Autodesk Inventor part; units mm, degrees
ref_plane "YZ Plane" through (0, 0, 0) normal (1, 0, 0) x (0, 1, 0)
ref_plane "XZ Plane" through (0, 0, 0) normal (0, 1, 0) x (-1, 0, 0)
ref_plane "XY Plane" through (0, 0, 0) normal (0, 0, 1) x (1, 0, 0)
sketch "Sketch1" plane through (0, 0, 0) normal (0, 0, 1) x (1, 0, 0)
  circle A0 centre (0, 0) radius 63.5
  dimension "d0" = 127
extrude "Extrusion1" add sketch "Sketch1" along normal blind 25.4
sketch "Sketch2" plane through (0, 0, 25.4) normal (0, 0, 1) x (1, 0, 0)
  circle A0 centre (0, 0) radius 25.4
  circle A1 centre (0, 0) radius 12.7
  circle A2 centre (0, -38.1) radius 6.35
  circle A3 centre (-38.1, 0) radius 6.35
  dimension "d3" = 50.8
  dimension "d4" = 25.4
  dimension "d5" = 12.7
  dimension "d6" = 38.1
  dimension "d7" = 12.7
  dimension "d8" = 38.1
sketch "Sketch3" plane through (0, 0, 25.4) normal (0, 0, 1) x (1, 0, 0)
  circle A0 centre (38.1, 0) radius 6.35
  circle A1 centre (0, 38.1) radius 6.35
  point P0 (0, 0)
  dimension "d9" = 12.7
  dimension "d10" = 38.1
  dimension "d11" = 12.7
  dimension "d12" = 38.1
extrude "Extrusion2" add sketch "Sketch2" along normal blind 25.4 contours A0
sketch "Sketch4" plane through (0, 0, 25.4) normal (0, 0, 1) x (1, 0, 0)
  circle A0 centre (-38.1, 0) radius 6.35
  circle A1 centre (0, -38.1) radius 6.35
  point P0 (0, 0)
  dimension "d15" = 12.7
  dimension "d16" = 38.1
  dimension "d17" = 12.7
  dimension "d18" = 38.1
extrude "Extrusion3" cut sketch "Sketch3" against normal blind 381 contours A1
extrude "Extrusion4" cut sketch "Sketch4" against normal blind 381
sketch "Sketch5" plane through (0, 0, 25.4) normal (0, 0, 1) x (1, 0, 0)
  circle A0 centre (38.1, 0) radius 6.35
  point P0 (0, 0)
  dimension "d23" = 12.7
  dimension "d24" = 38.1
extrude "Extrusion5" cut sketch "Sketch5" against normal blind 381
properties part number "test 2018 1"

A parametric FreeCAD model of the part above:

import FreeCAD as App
import Part
import Sketcher
from FreeCAD import Vector
Q = App.Units.Quantity

doc = App.newDocument("Part")
body = doc.addObject("PartDesign::Body", "Body")

sketch1 = doc.addObject("Sketcher::SketchObject", "Sketch")
body.addObject(sketch1)
sketch1.AttachmentSupport = (doc.XY_Plane, [""])
sketch1.MapMode = "FlatFace"
sketch1.addGeometry(Part.Circle(Vector(0, 0, 0), Vector(0, 0, 1), 63.5), False)
sketch1.addConstraint([
    Sketcher.Constraint("Coincident", 0, 3, -1, 1),
    Sketcher.Constraint("Diameter", 0, Q("5 in")),
])
pad1 = doc.addObject("PartDesign::Pad", "Pad")
body.addObject(pad1)
pad1.Profile = sketch1
pad1.Length = Q("1 in")

sketch2 = doc.addObject("Sketcher::SketchObject", "Sketch001")
body.addObject(sketch2)
sketch2.AttachmentSupport = (doc.XY_Plane, [""])
sketch2.MapMode = "FlatFace"
sketch2.AttachmentOffset = App.Placement(Vector(0, 0, 1 * 25.4), App.Rotation())
sketch2.addGeometry([
    Part.Circle(Vector(0, 0, 0), Vector(0, 0, 1), 25.4),
    Part.Circle(Vector(0, 0, 0), Vector(0, 0, 1), 12.7),
], False)
sketch2.addConstraint([
    Sketcher.Constraint("Coincident", 0, 3, -1, 1),
    Sketcher.Constraint("Coincident", 1, 3, -1, 1),
    Sketcher.Constraint("Diameter", 0, Q("2 in")),
    Sketcher.Constraint("Diameter", 1, Q("1 in")),
])
pad2 = doc.addObject("PartDesign::Pad", "Pad001")
body.addObject(pad2)
pad2.Profile = sketch2
pad2.Length = Q("1 in")

sketch3 = doc.addObject("Sketcher::SketchObject", "Sketch002")
body.addObject(sketch3)
sketch3.AttachmentSupport = (doc.XY_Plane, [""])
sketch3.MapMode = "FlatFace"
sketch3.AttachmentOffset = App.Placement(Vector(0, 0, 1 * 25.4), App.Rotation())
sketch3.addGeometry(Part.Circle(Vector(0, 38.1, 0), Vector(0, 0, 1), 6.35), False)
sketch3.addConstraint([
    Sketcher.Constraint("PointOnObject", 0, 3, -2),
    Sketcher.Constraint("Diameter", 0, Q("0.5 in")),
    Sketcher.Constraint("DistanceY", -1, 1, 0, 3, Q("1.5 in")),
])
pocket1 = doc.addObject("PartDesign::Pocket", "Pocket")
body.addObject(pocket1)
pocket1.Profile = sketch3
pocket1.Length = Q("15 in")

sketch4 = doc.addObject("Sketcher::SketchObject", "Sketch003")
body.addObject(sketch4)
sketch4.AttachmentSupport = (doc.XY_Plane, [""])
sketch4.MapMode = "FlatFace"
sketch4.AttachmentOffset = App.Placement(Vector(0, 0, 1 * 25.4), App.Rotation())
sketch4.addGeometry([
    Part.Circle(Vector(-38.1, 0, 0), Vector(0, 0, 1), 6.35),
    Part.Circle(Vector(0, -38.1, 0), Vector(0, 0, 1), 6.35),
], False)
sketch4.addConstraint([
    Sketcher.Constraint("Equal", 0, 1),
    Sketcher.Constraint("PointOnObject", 0, 3, -1),
    Sketcher.Constraint("PointOnObject", 1, 3, -2),
    Sketcher.Constraint("Diameter", 0, Q("0.5 in")),
    Sketcher.Constraint("DistanceX", 0, 3, -1, 1, Q("1.5 in")),
    Sketcher.Constraint("DistanceY", 1, 3, -1, 1, Q("1.5 in")),
])
pocket2 = doc.addObject("PartDesign::Pocket", "Pocket001")
body.addObject(pocket2)
pocket2.Profile = sketch4
pocket2.Length = Q("15 in")

sketch5 = doc.addObject("Sketcher::SketchObject", "Sketch004")
body.addObject(sketch5)
sketch5.AttachmentSupport = (doc.XY_Plane, [""])
sketch5.MapMode = "FlatFace"
sketch5.AttachmentOffset = App.Placement(Vector(0, 0, 1 * 25.4), App.Rotation())
sketch5.addGeometry(Part.Circle(Vector(38.1, 0, 0), Vector(0, 0, 1), 6.35), False)
sketch5.addConstraint([
    Sketcher.Constraint("PointOnObject", 0, 3, -1),
    Sketcher.Constraint("Diameter", 0, Q("0.5 in")),
    Sketcher.Constraint("DistanceX", -1, 1, 0, 3, Q("1.5 in")),
])
pocket3 = doc.addObject("PartDesign::Pocket", "Pocket002")
body.addObject(pocket3)
pocket3.Profile = sketch5
pocket3.Length = Q("15 in")

doc.recompute()
